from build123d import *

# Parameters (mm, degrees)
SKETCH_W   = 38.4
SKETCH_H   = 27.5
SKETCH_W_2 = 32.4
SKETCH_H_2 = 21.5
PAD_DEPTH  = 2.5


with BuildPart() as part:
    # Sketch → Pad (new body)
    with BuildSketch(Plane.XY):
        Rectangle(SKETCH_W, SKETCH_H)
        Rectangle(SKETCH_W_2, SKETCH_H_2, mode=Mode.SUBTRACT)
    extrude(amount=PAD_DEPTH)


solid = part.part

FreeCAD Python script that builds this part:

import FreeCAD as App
import Part
import Sketcher

V = App.Vector
Q = App.Units.Quantity

doc = App.newDocument("Part")
body = doc.addObject("PartDesign::Body", "Body")

# Sketch on XY plane
sketch1 = body.newObject("Sketcher::SketchObject", "Sketch")
sketch1.AttachmentSupport = (doc.getObject("XY_Plane"), [""])
sketch1.MapMode = "FlatFace"
sketch1.addGeometry([
    Part.LineSegment(V(-19, 14, 0), V(-19, -14, 0)),  # 0
    Part.LineSegment(V(-19, -14, 0), V(19, -14, 0)),  # 1
    Part.LineSegment(V(19, -14, 0), V(19, 14, 0)),  # 2
    Part.LineSegment(V(19, 14, 0), V(-19, 14, 0)),  # 3
    Part.LineSegment(V(16, -11, 0), V(-16, -11, 0)),  # 4
    Part.LineSegment(V(-16, -11, 0), V(-16, 11, 0)),  # 5
    Part.LineSegment(V(-16, 11, 0), V(16, 11, 0)),  # 6
    Part.LineSegment(V(16, 11, 0), V(16, -11, 0)),  # 7
], False)
sketch1.addConstraint([
    Sketcher.Constraint("Coincident", 0, 2, 1, 1),
    Sketcher.Constraint("Coincident", 1, 2, 2, 1),
    Sketcher.Constraint("Coincident", 2, 2, 3, 1),
    Sketcher.Constraint("Coincident", 3, 2, 0, 1),
    Sketcher.Constraint("Coincident", 4, 2, 5, 1),
    Sketcher.Constraint("Coincident", 5, 2, 6, 1),
    Sketcher.Constraint("Coincident", 6, 2, 7, 1),
    Sketcher.Constraint("Coincident", 7, 2, 4, 1),
    Sketcher.Constraint("Vertical", 0),
    Sketcher.Constraint("Horizontal", 1),
    Sketcher.Constraint("Vertical", 2),
    Sketcher.Constraint("Horizontal", 3),
    Sketcher.Constraint("Horizontal", 4),
    Sketcher.Constraint("Vertical", 5),
    Sketcher.Constraint("Horizontal", 6),
    Sketcher.Constraint("Vertical", 7),
    Sketcher.Constraint("Symmetric", 0, 2, 2, 2, -1, 1),
    Sketcher.Constraint("Symmetric", 4, 2, 6, 2, -1, 1),
    Sketcher.Constraint("DistanceX", 1, 1, 1, 2, Q("38.4 mm")),
    Sketcher.Constraint("DistanceX", 4, 2, 4, 1, Q("32.4 mm")),
    Sketcher.Constraint("DistanceY", 0, 2, 0, 1, Q("27.5 mm")),
    Sketcher.Constraint("DistanceY", 5, 1, 5, 2, Q("21.5 mm")),
])
pad1 = body.newObject("PartDesign::Pad", "Pad")
pad1.Profile = sketch1
pad1.Length = 2.5

doc.recompute()
